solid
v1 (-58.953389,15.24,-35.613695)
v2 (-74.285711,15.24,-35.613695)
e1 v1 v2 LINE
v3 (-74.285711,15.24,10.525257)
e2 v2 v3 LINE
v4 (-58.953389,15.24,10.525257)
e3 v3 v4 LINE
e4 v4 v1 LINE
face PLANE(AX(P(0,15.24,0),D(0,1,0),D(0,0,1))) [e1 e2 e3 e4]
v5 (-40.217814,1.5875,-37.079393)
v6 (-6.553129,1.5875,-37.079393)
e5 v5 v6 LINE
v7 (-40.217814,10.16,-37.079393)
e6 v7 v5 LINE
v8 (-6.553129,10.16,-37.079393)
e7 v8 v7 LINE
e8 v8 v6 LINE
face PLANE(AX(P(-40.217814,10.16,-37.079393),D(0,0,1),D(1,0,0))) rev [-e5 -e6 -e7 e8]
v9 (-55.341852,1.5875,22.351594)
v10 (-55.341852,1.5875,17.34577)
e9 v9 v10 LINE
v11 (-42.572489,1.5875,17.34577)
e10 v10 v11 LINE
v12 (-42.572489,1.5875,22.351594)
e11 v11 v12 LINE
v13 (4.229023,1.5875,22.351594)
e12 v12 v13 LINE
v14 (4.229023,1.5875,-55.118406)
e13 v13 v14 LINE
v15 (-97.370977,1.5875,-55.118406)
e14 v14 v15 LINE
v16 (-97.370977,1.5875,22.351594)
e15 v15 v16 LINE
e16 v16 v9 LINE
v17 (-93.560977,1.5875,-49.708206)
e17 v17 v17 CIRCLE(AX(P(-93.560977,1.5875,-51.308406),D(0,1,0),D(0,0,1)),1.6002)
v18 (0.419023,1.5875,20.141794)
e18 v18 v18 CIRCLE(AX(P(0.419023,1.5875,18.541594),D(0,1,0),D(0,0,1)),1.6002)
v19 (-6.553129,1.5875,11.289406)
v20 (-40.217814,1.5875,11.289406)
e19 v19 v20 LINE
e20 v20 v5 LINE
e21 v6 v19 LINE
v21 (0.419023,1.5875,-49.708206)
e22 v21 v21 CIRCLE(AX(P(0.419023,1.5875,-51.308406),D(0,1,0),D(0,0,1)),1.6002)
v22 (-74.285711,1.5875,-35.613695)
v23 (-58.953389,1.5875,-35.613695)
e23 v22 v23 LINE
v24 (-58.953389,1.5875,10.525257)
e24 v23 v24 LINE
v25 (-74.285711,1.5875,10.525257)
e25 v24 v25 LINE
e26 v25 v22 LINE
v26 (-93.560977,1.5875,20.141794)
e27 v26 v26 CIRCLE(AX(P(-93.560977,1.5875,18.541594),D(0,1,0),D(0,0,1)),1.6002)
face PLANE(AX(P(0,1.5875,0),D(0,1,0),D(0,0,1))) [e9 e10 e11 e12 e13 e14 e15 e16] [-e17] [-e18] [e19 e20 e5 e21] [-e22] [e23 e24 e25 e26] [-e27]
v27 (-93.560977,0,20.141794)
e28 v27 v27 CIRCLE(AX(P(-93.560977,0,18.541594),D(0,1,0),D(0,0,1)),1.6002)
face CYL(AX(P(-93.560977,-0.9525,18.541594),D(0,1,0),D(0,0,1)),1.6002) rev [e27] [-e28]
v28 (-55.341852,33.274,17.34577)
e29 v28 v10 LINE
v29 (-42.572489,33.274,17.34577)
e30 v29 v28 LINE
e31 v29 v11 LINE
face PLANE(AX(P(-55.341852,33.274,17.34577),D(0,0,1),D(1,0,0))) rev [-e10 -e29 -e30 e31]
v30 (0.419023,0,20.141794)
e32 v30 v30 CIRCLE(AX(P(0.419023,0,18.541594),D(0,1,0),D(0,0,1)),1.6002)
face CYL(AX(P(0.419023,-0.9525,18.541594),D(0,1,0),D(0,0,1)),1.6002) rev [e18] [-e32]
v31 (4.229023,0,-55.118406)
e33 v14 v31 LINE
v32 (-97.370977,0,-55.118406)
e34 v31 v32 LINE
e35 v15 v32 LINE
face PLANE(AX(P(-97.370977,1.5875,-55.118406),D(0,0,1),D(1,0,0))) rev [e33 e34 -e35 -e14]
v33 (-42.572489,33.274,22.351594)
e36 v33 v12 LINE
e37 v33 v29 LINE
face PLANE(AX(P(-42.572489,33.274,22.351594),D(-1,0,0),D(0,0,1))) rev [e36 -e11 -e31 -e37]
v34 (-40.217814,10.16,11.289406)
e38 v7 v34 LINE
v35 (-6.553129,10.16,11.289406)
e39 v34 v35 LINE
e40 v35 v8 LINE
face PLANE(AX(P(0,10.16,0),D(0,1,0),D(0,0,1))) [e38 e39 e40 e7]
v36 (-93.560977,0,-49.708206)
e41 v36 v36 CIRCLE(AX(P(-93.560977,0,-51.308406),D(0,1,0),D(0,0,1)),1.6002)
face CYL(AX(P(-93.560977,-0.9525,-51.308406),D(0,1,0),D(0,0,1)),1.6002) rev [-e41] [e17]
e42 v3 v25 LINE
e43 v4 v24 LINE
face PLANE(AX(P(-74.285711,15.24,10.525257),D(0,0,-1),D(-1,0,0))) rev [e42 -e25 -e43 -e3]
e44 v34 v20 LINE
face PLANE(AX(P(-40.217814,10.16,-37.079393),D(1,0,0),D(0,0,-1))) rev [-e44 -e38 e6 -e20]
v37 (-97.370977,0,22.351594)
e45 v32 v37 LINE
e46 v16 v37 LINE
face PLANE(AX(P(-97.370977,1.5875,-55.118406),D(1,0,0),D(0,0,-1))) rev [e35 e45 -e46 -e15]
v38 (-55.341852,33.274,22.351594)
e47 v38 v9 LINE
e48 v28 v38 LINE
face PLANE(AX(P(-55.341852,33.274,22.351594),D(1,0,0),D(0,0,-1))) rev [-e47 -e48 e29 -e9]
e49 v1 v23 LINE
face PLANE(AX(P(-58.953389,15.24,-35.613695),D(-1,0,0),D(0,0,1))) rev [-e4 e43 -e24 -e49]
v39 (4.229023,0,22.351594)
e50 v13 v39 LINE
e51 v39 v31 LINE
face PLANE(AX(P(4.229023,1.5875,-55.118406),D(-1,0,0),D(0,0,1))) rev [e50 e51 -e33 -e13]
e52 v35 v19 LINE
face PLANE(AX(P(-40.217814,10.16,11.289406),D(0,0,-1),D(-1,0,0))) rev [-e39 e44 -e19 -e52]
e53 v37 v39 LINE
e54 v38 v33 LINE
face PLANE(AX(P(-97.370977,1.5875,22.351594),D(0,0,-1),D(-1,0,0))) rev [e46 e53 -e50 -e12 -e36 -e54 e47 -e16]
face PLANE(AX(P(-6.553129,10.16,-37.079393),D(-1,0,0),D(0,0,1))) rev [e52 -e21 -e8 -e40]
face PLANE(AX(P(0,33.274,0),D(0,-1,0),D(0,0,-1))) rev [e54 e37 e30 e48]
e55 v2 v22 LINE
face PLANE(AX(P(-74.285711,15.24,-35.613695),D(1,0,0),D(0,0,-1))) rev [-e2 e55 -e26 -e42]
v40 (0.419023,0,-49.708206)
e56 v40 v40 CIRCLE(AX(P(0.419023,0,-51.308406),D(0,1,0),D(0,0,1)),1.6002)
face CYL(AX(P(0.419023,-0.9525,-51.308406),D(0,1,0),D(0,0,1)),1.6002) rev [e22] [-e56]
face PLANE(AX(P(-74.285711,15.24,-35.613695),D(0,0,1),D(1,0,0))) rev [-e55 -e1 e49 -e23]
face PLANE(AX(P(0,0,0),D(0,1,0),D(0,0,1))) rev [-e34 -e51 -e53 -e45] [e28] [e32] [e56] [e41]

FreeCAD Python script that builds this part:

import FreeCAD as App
import Part
import Sketcher
Q = App.Units.Quantity


def add_polygon(sketch, points):
    """Adds a closed chain of lines whose ends are joined by coincident constraints."""
    first, n = sketch.GeometryCount, len(points)
    for a, b in zip(points, points[1:] + points[:1]):
        sketch.addGeometry(Part.LineSegment(App.Vector(*a, 0), App.Vector(*b, 0)), False)
    for i in range(n):
        sketch.addConstraint(Sketcher.Constraint("Coincident", first + i, 2, first + (i + 1) % n, 1))

doc = App.newDocument("Part")
body = doc.addObject("PartDesign::Body", "Body")

sketch1 = body.newObject("Sketcher::SketchObject", "Sketch")
sketch1.AttachmentSupport = (doc.getObject("XZ_Plane"), [""])
sketch1.MapMode = "FlatFace"
add_polygon(sketch1, [(-97.370977, -55.118406), (-97.370977, 22.351594), (4.229023, 22.351594), (4.229023, -55.118406)])
sketch1.addConstraint([
    Sketcher.Constraint("Vertical", 0),
    Sketcher.Constraint("Horizontal", 1),
    Sketcher.Constraint("Vertical", 2),
    Sketcher.Constraint("Horizontal", 3),
    Sketcher.Constraint("DistanceX", 1, 1, 1, 2, Q("4 in")),
    Sketcher.Constraint("DistanceY", 0, 1, 0, 2, Q("3.05 in")),
    Sketcher.Constraint("DistanceX", 0, 2, -1, 1, Q("97.370977 mm")),
    Sketcher.Constraint("DistanceY", -1, 1, 0, 2, Q("22.351594 mm")),
])
pad1 = body.newObject("PartDesign::Pad", "Pad")
pad1.Profile = sketch1
pad1.Length = Q("0.0625 in")
pad1.Reversed = True

sketch2 = body.newObject("Sketcher::SketchObject", "Sketch001")
sketch2.AttachmentSupport = (doc.getObject("XZ_Plane"), [""])
sketch2.MapMode = "FlatFace"
sketch2.AttachmentOffset = App.Placement(App.Vector(0, 0, -0.0625 * 25.4), App.Rotation())
sketch2.addGeometry([
    Part.Circle(App.Vector(-93.560977, 18.541594, 0), App.Vector(0, 0, 1), 1.6002),
    Part.Circle(App.Vector(-93.560977, -51.308406, 0), App.Vector(0, 0, 1), 1.6002),
    Part.Circle(App.Vector(0.419023, -51.308406, 0), App.Vector(0, 0, 1), 1.6002),
    Part.Circle(App.Vector(0.419023, 18.541594, 0), App.Vector(0, 0, 1), 1.6002),
], False)
sketch2.addConstraint([
    Sketcher.Constraint("Equal", 0, 1),
    Sketcher.Constraint("Equal", 1, 2),
    Sketcher.Constraint("Equal", 2, 3),
    Sketcher.Constraint("Horizontal", 1, 3, 2, 3),
    Sketcher.Constraint("Horizontal", 0, 3, 3, 3),
    Sketcher.Constraint("Vertical", 0, 3, 1, 3),
    Sketcher.Constraint("Vertical", 2, 3, 3, 3),
    Sketcher.Constraint("Diameter", 0, Q("0.126 in")),
    Sketcher.Constraint("DistanceX", 1, 3, 2, 3, Q("3.7 in")),
    Sketcher.Constraint("DistanceY", 1, 3, 0, 3, Q("2.75 in")),
    Sketcher.Constraint("DistanceX", 0, 3, -1, 1, Q("93.560977 mm")),
    Sketcher.Constraint("DistanceY", -1, 1, 0, 3, Q("18.541594 mm")),
])
pocket1 = body.newObject("PartDesign::Pocket", "Pocket")
pocket1.Profile = sketch2
pocket1.Length = Q("0.1 in")
pocket1.Reversed = True

sketch3 = body.newObject("Sketcher::SketchObject", "Sketch002")
sketch3.AttachmentSupport = (doc.getObject("XZ_Plane"), [""])
sketch3.MapMode = "FlatFace"
add_polygon(sketch3, [(-55.341852, 17.34577), (-55.341852, 22.351594), (-42.572489, 22.351594), (-42.572489, 17.34577)])
sketch3.addConstraint([
    Sketcher.Constraint("Vertical", 0),
    Sketcher.Constraint("Horizontal", 1),
    Sketcher.Constraint("Vertical", 2),
    Sketcher.Constraint("Horizontal", 3),
    Sketcher.Constraint("DistanceX", 1, 1, 1, 2, Q("12.769363 mm")),
    Sketcher.Constraint("DistanceY", 0, 1, 0, 2, Q("5.005824 mm")),
    Sketcher.Constraint("DistanceX", 1, 2, -1, 1, Q("42.572489 mm")),
    Sketcher.Constraint("DistanceY", -1, 1, 2, 2, Q("17.34577 mm")),
])
pad2 = body.newObject("PartDesign::Pad", "Pad001")
pad2.Profile = sketch3
pad2.Length = Q("1.31 in")
pad2.Reversed = True

sketch4 = body.newObject("Sketcher::SketchObject", "Sketch003")
sketch4.AttachmentSupport = (doc.getObject("XZ_Plane"), [""])
sketch4.MapMode = "FlatFace"
add_polygon(sketch4, [(-40.217814, -37.079393), (-40.217814, 11.289406), (-6.553129, 11.289406), (-6.553129, -37.079393)])
sketch4.addConstraint([
    Sketcher.Constraint("Vertical", 0),
    Sketcher.Constraint("Horizontal", 1),
    Sketcher.Constraint("Vertical", 2),
    Sketcher.Constraint("Horizontal", 3),
    Sketcher.Constraint("DistanceY", 0, 1, 0, 2, Q("48.368799 mm")),
    Sketcher.Constraint("DistanceX", 1, 1, 1, 2, Q("33.664684 mm")),
    Sketcher.Constraint("DistanceX", 1, 2, -1, 1, Q("6.553129 mm")),
    Sketcher.Constraint("DistanceY", -1, 1, 0, 2, Q("11.289406 mm")),
])
pad3 = body.newObject("PartDesign::Pad", "Pad002")
pad3.Profile = sketch4
pad3.Length = Q("0.4 in")
pad3.Reversed = True

sketch5 = body.newObject("Sketcher::SketchObject", "Sketch004")
sketch5.AttachmentSupport = (doc.getObject("XZ_Plane"), [""])
sketch5.MapMode = "FlatFace"
add_polygon(sketch5, [(-74.285711, -35.613695), (-74.285711, 10.525257), (-58.953389, 10.525257), (-58.953389, -35.613695)])
sketch5.addConstraint([
    Sketcher.Constraint("Vertical", 0),
    Sketcher.Constraint("Horizontal", 1),
    Sketcher.Constraint("Vertical", 2),
    Sketcher.Constraint("Horizontal", 3),
    Sketcher.Constraint("DistanceX", 1, 1, 1, 2, Q("15.332322 mm")),
    Sketcher.Constraint("DistanceY", 0, 1, 0, 2, Q("46.138952 mm")),
    Sketcher.Constraint("DistanceX", 0, 2, -1, 1, Q("74.285711 mm")),
    Sketcher.Constraint("DistanceY", -1, 1, 0, 2, Q("10.525257 mm")),
])
pad4 = body.newObject("PartDesign::Pad", "Pad003")
pad4.Profile = sketch5
pad4.Length = Q("0.6 in")
pad4.Reversed = True

doc.recompute()
